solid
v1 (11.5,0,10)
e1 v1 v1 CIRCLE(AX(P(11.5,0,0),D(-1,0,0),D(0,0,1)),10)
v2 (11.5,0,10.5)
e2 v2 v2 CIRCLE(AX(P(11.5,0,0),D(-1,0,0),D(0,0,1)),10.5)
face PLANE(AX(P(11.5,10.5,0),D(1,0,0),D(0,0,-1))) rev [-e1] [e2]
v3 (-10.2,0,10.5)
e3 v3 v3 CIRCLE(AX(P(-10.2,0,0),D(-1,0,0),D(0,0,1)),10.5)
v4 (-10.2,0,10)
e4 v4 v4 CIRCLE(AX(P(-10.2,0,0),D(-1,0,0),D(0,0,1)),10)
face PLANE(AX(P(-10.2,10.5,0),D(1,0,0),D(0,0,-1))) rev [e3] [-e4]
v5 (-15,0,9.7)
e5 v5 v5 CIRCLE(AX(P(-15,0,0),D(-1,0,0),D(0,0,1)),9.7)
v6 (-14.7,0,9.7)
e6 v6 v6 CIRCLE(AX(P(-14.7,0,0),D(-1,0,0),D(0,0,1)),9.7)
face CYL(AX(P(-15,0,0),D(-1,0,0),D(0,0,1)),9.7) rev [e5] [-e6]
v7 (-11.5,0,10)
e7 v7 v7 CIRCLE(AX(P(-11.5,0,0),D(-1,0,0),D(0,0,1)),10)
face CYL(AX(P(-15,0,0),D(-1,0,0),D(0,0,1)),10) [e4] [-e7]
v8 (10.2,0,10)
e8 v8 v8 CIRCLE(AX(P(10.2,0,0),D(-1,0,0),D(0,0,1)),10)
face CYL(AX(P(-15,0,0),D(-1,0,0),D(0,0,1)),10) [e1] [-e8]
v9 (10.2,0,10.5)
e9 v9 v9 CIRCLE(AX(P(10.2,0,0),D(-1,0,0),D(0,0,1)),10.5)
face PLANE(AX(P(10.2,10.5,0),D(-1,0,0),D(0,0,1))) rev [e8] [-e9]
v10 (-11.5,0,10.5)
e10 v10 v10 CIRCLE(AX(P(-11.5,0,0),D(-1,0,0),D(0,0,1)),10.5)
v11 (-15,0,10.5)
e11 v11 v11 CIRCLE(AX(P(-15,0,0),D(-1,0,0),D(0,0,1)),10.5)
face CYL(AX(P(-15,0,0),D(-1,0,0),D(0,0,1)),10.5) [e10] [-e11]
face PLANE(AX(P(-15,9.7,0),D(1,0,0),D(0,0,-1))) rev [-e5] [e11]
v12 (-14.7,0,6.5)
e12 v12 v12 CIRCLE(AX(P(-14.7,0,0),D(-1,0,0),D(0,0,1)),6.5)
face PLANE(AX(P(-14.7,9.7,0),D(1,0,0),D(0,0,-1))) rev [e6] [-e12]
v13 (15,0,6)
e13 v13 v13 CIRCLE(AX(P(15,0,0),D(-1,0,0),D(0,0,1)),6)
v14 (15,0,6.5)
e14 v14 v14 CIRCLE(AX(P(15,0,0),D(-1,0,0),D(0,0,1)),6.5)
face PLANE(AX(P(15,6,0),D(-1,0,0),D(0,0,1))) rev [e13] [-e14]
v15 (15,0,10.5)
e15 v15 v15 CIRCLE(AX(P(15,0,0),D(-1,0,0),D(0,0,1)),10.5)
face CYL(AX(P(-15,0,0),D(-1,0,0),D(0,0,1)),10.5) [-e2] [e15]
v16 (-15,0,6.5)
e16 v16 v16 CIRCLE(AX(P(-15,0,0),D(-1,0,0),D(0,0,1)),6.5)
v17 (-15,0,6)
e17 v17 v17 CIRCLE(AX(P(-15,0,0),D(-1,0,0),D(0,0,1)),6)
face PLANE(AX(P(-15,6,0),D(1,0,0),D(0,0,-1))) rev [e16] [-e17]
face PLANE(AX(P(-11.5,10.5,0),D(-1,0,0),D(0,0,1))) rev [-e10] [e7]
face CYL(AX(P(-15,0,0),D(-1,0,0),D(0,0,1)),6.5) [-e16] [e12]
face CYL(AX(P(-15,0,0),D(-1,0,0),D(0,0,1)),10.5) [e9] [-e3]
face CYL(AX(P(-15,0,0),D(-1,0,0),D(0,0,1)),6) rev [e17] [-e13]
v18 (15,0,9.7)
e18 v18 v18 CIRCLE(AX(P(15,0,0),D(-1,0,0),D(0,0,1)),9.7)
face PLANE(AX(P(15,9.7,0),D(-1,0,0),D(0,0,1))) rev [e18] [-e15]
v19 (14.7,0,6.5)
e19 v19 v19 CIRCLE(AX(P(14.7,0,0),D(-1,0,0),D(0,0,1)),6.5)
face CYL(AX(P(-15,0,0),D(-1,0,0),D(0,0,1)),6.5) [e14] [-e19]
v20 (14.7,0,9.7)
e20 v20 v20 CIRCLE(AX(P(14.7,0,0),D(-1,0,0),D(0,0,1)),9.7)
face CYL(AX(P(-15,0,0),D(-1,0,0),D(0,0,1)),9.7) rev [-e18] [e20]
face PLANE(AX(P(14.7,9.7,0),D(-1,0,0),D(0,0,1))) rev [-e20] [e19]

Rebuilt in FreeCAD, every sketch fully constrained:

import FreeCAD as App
import Part
import Sketcher


def add_polygon(sketch, points):
    """Adds a closed chain of lines whose ends are joined by coincident constraints."""
    first, n = sketch.GeometryCount, len(points)
    for a, b in zip(points, points[1:] + points[:1]):
        sketch.addGeometry(Part.LineSegment(App.Vector(*a, 0), App.Vector(*b, 0)), False)
    for i in range(n):
        sketch.addConstraint(Sketcher.Constraint("Coincident", first + i, 2, first + (i + 1) % n, 1))

doc = App.newDocument("Part")
body = doc.addObject("PartDesign::Body", "Body")

# Sketch on XY plane
sketch1 = body.newObject("Sketcher::SketchObject", "Sketch")
sketch1.AttachmentSupport = (doc.getObject("XY_Plane"), [""])
sketch1.MapMode = "FlatFace"
add_polygon(sketch1, [(-15, 6), (15, 6), (15, 6.5), (14.7, 6.5), (14.7, 9.7), (15, 9.7), (15, 10.5), (11.5, 10.5), (11.5, 10), (10.2, 10), (10.2, 10.5), (-10.2, 10.5), (-10.2, 10), (-11.5, 10), (-11.5, 10.5), (-15, 10.5), (-15, 9.7), (-14.7, 9.7), (-14.7, 6.5), (-15, 6.5)])  # lines 0-19
sketch1.addConstraint([
    Sketcher.Constraint("Horizontal", 0),
    Sketcher.Constraint("Vertical", 1),
    Sketcher.Constraint("Horizontal", 2),
    Sketcher.Constraint("Vertical", 3),
    Sketcher.Constraint("Horizontal", 4),
    Sketcher.Constraint("Vertical", 5),
    Sketcher.Constraint("Horizontal", 6),
    Sketcher.Constraint("Vertical", 7),
    Sketcher.Constraint("Horizontal", 8),
    Sketcher.Constraint("Vertical", 9),
    Sketcher.Constraint("Horizontal", 10),
    Sketcher.Constraint("Vertical", 11),
    Sketcher.Constraint("Horizontal", 12),
    Sketcher.Constraint("Vertical", 13),
    Sketcher.Constraint("Horizontal", 14),
    Sketcher.Constraint("Vertical", 15),
    Sketcher.Constraint("Horizontal", 16),
    Sketcher.Constraint("Vertical", 17),
    Sketcher.Constraint("Horizontal", 18),
    Sketcher.Constraint("Vertical", 19),
    Sketcher.Constraint("Symmetric", 8, 2, 11, 2, -2),
    Sketcher.Constraint("Symmetric", 6, 2, 13, 2, -2),
    Sketcher.Constraint("Symmetric", 4, 2, 15, 2, -2),
    Sketcher.Constraint("Symmetric", 2, 2, 17, 2, -2),
    Sketcher.Constraint("Horizontal", 6, 2, 9, 2),
    Sketcher.Constraint("Vertical", 1, 2, 4, 2),
    Sketcher.Constraint("Vertical", 15, 2, 18, 2),
    Sketcher.Constraint("Equal", 1, 7),
    Sketcher.Constraint("DistanceX", 0, 1, 0, 2, 30.0),
    Sketcher.Constraint("DistanceX", 2, 2, 2, 1, 0.3),
    Sketcher.Constraint("DistanceX", 6, 2, 6, 1, 3.5),
    Sketcher.Constraint("DistanceX", 8, 2, 8, 1, 1.3),
    Sketcher.Constraint("DistanceY", 1, 1, 1, 2, 0.5),
    Sketcher.Constraint("DistanceY", 3, 1, 3, 2, 3.2),
    Sketcher.Constraint("DistanceY", 5, 1, 5, 2, 0.8),
    Sketcher.Constraint("DistanceY", -1, 1, 0, 2, 6.0),
])
revolution = body.newObject("PartDesign::Revolution", "Revolution")
revolution.Profile = sketch1
revolution.ReferenceAxis = (sketch1, ["H_Axis"])
revolution.Angle = 360

doc.recompute()
